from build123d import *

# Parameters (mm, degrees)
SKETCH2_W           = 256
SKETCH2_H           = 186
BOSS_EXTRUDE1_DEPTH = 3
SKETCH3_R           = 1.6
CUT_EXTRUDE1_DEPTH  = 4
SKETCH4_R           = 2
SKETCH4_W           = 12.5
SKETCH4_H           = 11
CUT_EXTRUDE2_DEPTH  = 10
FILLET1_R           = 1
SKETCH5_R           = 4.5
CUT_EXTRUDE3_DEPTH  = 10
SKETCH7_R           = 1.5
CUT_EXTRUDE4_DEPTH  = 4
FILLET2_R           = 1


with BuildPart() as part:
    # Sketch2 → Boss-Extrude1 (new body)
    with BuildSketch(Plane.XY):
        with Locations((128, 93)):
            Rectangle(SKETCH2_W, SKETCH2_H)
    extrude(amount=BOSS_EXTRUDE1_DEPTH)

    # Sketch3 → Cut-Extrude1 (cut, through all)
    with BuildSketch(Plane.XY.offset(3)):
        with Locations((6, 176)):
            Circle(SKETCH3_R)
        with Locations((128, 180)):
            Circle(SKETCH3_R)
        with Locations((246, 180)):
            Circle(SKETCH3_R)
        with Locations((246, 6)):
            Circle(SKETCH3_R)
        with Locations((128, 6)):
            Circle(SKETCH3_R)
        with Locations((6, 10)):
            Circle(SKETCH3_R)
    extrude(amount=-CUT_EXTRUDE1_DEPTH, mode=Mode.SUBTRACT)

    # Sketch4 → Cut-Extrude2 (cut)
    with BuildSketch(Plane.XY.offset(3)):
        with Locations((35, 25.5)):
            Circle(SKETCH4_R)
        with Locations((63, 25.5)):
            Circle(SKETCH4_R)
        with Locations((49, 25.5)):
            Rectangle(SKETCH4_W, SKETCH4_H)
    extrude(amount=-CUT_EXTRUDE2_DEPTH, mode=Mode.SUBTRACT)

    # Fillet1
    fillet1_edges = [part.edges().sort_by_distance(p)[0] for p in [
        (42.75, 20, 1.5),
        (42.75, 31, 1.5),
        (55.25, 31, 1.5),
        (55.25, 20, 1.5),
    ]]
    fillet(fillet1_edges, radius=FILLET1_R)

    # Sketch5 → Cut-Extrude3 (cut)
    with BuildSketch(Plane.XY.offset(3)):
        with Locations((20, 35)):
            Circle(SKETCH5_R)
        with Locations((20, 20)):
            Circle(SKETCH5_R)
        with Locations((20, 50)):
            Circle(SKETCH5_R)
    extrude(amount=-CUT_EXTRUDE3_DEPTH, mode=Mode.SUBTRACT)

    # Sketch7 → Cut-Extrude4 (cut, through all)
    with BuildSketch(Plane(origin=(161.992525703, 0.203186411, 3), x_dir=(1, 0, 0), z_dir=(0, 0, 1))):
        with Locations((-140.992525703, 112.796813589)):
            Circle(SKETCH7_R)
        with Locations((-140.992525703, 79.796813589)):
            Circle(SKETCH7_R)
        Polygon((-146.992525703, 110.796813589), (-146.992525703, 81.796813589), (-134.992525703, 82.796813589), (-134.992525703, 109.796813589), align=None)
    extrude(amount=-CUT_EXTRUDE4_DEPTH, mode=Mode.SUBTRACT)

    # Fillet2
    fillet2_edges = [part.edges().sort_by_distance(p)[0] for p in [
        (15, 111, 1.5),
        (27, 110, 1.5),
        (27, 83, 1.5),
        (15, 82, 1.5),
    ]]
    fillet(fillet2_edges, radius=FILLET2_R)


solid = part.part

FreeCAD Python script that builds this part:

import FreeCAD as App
import Part
import Sketcher
from FreeCAD import Vector
Q = App.Units.Quantity


def edges_at(feature, points):
    """Names of the edges that pass closest to the given points."""
    edges = feature.Shape.Edges
    near = lambda p: min(range(len(edges)), key=lambda i: edges[i].distToShape(Part.Vertex(*p))[0])
    return sorted({f"Edge{near(p) + 1}" for p in points})


def add_polygon(sketch, points):
    """Adds a closed chain of lines whose ends are joined by coincident constraints."""
    first, n = sketch.GeometryCount, len(points)
    for a, b in zip(points, points[1:] + points[:1]):
        sketch.addGeometry(Part.LineSegment(App.Vector(*a, 0), App.Vector(*b, 0)), False)
    for i in range(n):
        sketch.addConstraint(Sketcher.Constraint("Coincident", first + i, 2, first + (i + 1) % n, 1))

doc = App.newDocument("Part")
body = doc.addObject("PartDesign::Body", "Body")

sketch1 = doc.addObject("Sketcher::SketchObject", "Sketch")
body.addObject(sketch1)
sketch1.AttachmentSupport = (doc.XY_Plane, [""])
sketch1.MapMode = "FlatFace"
add_polygon(sketch1, [(0, 186), (0, 0), (256, 0), (256, 186)])
sketch1.addConstraint([
    Sketcher.Constraint("Vertical", 0),
    Sketcher.Constraint("Horizontal", 1),
    Sketcher.Constraint("Vertical", 2),
    Sketcher.Constraint("Horizontal", 3),
    Sketcher.Constraint("Coincident", 0, 2, -1, 1),
    Sketcher.Constraint("DistanceX", 1, 1, 1, 2, Q("256 mm")),
    Sketcher.Constraint("DistanceY", 0, 2, 0, 1, Q("186 mm")),
])
pad1 = doc.addObject("PartDesign::Pad", "Pad")
body.addObject(pad1)
pad1.Profile = sketch1
pad1.Length = 3

sketch2 = doc.addObject("Sketcher::SketchObject", "Sketch001")
body.addObject(sketch2)
sketch2.AttachmentSupport = (doc.XY_Plane, [""])
sketch2.MapMode = "FlatFace"
sketch2.AttachmentOffset = App.Placement(Vector(0, 0, 3), App.Rotation())
sketch2.addGeometry([
    Part.Circle(Vector(6, 176, 0), Vector(0, 0, 1), 1.6),
    Part.Circle(Vector(128, 180, 0), Vector(0, 0, 1), 1.6),
    Part.Circle(Vector(246, 180, 0), Vector(0, 0, 1), 1.6),
    Part.Circle(Vector(246, 6, 0), Vector(0, 0, 1), 1.6),
    Part.Circle(Vector(128, 6, 0), Vector(0, 0, 1), 1.6),
    Part.Circle(Vector(6, 10, 0), Vector(0, 0, 1), 1.6),
], False)
sketch2.addConstraint([
    Sketcher.Constraint("Equal", 0, 1),
    Sketcher.Constraint("Equal", 1, 2),
    Sketcher.Constraint("Equal", 2, 3),
    Sketcher.Constraint("Equal", 3, 4),
    Sketcher.Constraint("Equal", 4, 5),
    Sketcher.Constraint("Horizontal", 1, 3, 2, 3),
    Sketcher.Constraint("Horizontal", 3, 3, 4, 3),
    Sketcher.Constraint("Vertical", 2, 3, 3, 3),
    Sketcher.Constraint("Vertical", 1, 3, 4, 3),
    Sketcher.Constraint("Vertical", 0, 3, 5, 3),
    Sketcher.Constraint("Diameter", 0, Q("3.2 mm")),
    Sketcher.Constraint("DistanceX", -1, 1, 0, 3, Q("6 mm")),
    Sketcher.Constraint("DistanceY", -1, 1, 0, 3, Q("176 mm")),
    Sketcher.Constraint("DistanceX", -1, 1, 1, 3, Q("128 mm")),
    Sketcher.Constraint("DistanceY", -1, 1, 1, 3, Q("180 mm")),
    Sketcher.Constraint("DistanceX", -1, 1, 2, 3, Q("246 mm")),
    Sketcher.Constraint("DistanceY", -1, 1, 3, 3, Q("6 mm")),
    Sketcher.Constraint("DistanceY", -1, 1, 5, 3, Q("10 mm")),
])
pocket1 = doc.addObject("PartDesign::Pocket", "Pocket")
body.addObject(pocket1)
pocket1.Profile = sketch2
pocket1.Type = "ThroughAll"

sketch3 = doc.addObject("Sketcher::SketchObject", "Sketch002")
body.addObject(sketch3)
sketch3.AttachmentSupport = (doc.XY_Plane, [""])
sketch3.MapMode = "FlatFace"
sketch3.AttachmentOffset = App.Placement(Vector(0, 0, 3), App.Rotation())
sketch3.addGeometry(Part.Circle(Vector(35, 25.5, 0), Vector(0, 0, 1), 2), False)
sketch3.addGeometry(Part.Circle(Vector(63, 25.5, 0), Vector(0, 0, 1), 2), False)
add_polygon(sketch3, [(42.8, 31), (42.8, 20), (55.2, 20), (55.2, 31)])
sketch3.addConstraint([
    Sketcher.Constraint("Vertical", 2),
    Sketcher.Constraint("Horizontal", 3),
    Sketcher.Constraint("Vertical", 4),
    Sketcher.Constraint("Horizontal", 5),
    Sketcher.Constraint("Equal", 0, 1),
    Sketcher.Constraint("Horizontal", 0, 3, 1, 3),
    Sketcher.Constraint("Diameter", 0, Q("4 mm")),
    Sketcher.Constraint("DistanceY", 2, 2, 2, 1, Q("11 mm")),
    Sketcher.Constraint("DistanceX", 3, 1, 3, 2, Q("12.5 mm")),
    Sketcher.Constraint("DistanceX", -1, 1, 0, 3, Q("35 mm")),
    Sketcher.Constraint("DistanceX", -1, 1, 1, 3, Q("63 mm")),
    Sketcher.Constraint("DistanceY", -1, 1, 2, 2, Q("20 mm")),
    Sketcher.Constraint("DistanceY", -1, 1, 0, 3, Q("25.5 mm")),
    Sketcher.Constraint("DistanceX", -1, 1, 2, 2, Q("42.75 mm")),
])
pocket2 = doc.addObject("PartDesign::Pocket", "Pocket001")
body.addObject(pocket2)
pocket2.Profile = sketch3
pocket2.Length = 10
doc.recompute()

fillet = doc.addObject("PartDesign::Fillet", "Fillet")
body.addObject(fillet)
fillet.Base = (pocket2, edges_at(pocket2, [
    (42.75, 20, 1.5),
    (42.75, 31, 1.5),
    (55.25, 31, 1.5),
    (55.25, 20, 1.5),
]))
fillet.Radius = 1

sketch4 = doc.addObject("Sketcher::SketchObject", "Sketch003")
body.addObject(sketch4)
sketch4.AttachmentSupport = (doc.XY_Plane, [""])
sketch4.MapMode = "FlatFace"
sketch4.AttachmentOffset = App.Placement(Vector(0, 0, 3), App.Rotation())
sketch4.addGeometry([
    Part.Circle(Vector(20, 35, 0), Vector(0, 0, 1), 4.5),
    Part.Circle(Vector(20, 20, 0), Vector(0, 0, 1), 4.5),
    Part.Circle(Vector(20, 50, 0), Vector(0, 0, 1), 4.5),
], False)
sketch4.addConstraint([
    Sketcher.Constraint("Equal", 0, 1),
    Sketcher.Constraint("Equal", 1, 2),
    Sketcher.Constraint("Vertical", 0, 3, 1, 3),
    Sketcher.Constraint("Vertical", 1, 3, 2, 3),
    Sketcher.Constraint("Diameter", 0, Q("9 mm")),
    Sketcher.Constraint("DistanceX", -1, 1, 0, 3, Q("20 mm")),
    Sketcher.Constraint("DistanceY", -1, 1, 0, 3, Q("35 mm")),
    Sketcher.Constraint("DistanceY", -1, 1, 1, 3, Q("20 mm")),
    Sketcher.Constraint("DistanceY", -1, 1, 2, 3, Q("50 mm")),
])
pocket3 = doc.addObject("PartDesign::Pocket", "Pocket002")
body.addObject(pocket3)
pocket3.Profile = sketch4
pocket3.Length = 10

sketch5 = doc.addObject("Sketcher::SketchObject", "Sketch004")
body.addObject(sketch5)
sketch5.AttachmentSupport = (doc.XY_Plane, [""])
sketch5.MapMode = "FlatFace"
sketch5.AttachmentOffset = App.Placement(Vector(0, 0, 3), App.Rotation())
sketch5.addGeometry(Part.Circle(Vector(21, 113, 0), Vector(0, 0, 1), 1.5), False)
sketch5.addGeometry(Part.Circle(Vector(21, 80, 0), Vector(0, 0, 1), 1.5), False)
add_polygon(sketch5, [(15, 111), (15, 82), (27, 83), (27, 110)])
sketch5.addConstraint([
    Sketcher.Constraint("Vertical", 2),
    Sketcher.Constraint("Vertical", 4),
    Sketcher.Constraint("Equal", 0, 1),
    Sketcher.Constraint("Vertical", 0, 3, 1, 3),
    Sketcher.Constraint("Equal", 3, 5),
    Sketcher.Constraint("Diameter", 0, Q("3 mm")),
    Sketcher.Constraint("DistanceY", 2, 2, 2, 1, Q("29 mm")),
    Sketcher.Constraint("DistanceY", 4, 1, 4, 2, Q("27 mm")),
    Sketcher.Constraint("DistanceX", -1, 1, 0, 3, Q("21 mm")),
    Sketcher.Constraint("DistanceY", -1, 1, 0, 3, Q("113 mm")),
    Sketcher.Constraint("DistanceY", -1, 1, 1, 3, Q("80 mm")),
    Sketcher.Constraint("DistanceX", -1, 1, 2, 2, Q("15 mm")),
    Sketcher.Constraint("DistanceY", -1, 1, 2, 2, Q("82 mm")),
    Sketcher.Constraint("DistanceX", -1, 1, 3, 2, Q("27 mm")),
])
pocket4 = doc.addObject("PartDesign::Pocket", "Pocket003")
body.addObject(pocket4)
pocket4.Profile = sketch5
pocket4.Type = "ThroughAll"
doc.recompute()

fillet2 = doc.addObject("PartDesign::Fillet", "Fillet001")
body.addObject(fillet2)
fillet2.Base = (pocket4, edges_at(pocket4, [
    (15, 111, 1.5),
    (27, 110, 1.5),
    (27, 83, 1.5),
    (15, 82, 1.5),
]))
fillet2.Radius = 1

doc.recompute()
